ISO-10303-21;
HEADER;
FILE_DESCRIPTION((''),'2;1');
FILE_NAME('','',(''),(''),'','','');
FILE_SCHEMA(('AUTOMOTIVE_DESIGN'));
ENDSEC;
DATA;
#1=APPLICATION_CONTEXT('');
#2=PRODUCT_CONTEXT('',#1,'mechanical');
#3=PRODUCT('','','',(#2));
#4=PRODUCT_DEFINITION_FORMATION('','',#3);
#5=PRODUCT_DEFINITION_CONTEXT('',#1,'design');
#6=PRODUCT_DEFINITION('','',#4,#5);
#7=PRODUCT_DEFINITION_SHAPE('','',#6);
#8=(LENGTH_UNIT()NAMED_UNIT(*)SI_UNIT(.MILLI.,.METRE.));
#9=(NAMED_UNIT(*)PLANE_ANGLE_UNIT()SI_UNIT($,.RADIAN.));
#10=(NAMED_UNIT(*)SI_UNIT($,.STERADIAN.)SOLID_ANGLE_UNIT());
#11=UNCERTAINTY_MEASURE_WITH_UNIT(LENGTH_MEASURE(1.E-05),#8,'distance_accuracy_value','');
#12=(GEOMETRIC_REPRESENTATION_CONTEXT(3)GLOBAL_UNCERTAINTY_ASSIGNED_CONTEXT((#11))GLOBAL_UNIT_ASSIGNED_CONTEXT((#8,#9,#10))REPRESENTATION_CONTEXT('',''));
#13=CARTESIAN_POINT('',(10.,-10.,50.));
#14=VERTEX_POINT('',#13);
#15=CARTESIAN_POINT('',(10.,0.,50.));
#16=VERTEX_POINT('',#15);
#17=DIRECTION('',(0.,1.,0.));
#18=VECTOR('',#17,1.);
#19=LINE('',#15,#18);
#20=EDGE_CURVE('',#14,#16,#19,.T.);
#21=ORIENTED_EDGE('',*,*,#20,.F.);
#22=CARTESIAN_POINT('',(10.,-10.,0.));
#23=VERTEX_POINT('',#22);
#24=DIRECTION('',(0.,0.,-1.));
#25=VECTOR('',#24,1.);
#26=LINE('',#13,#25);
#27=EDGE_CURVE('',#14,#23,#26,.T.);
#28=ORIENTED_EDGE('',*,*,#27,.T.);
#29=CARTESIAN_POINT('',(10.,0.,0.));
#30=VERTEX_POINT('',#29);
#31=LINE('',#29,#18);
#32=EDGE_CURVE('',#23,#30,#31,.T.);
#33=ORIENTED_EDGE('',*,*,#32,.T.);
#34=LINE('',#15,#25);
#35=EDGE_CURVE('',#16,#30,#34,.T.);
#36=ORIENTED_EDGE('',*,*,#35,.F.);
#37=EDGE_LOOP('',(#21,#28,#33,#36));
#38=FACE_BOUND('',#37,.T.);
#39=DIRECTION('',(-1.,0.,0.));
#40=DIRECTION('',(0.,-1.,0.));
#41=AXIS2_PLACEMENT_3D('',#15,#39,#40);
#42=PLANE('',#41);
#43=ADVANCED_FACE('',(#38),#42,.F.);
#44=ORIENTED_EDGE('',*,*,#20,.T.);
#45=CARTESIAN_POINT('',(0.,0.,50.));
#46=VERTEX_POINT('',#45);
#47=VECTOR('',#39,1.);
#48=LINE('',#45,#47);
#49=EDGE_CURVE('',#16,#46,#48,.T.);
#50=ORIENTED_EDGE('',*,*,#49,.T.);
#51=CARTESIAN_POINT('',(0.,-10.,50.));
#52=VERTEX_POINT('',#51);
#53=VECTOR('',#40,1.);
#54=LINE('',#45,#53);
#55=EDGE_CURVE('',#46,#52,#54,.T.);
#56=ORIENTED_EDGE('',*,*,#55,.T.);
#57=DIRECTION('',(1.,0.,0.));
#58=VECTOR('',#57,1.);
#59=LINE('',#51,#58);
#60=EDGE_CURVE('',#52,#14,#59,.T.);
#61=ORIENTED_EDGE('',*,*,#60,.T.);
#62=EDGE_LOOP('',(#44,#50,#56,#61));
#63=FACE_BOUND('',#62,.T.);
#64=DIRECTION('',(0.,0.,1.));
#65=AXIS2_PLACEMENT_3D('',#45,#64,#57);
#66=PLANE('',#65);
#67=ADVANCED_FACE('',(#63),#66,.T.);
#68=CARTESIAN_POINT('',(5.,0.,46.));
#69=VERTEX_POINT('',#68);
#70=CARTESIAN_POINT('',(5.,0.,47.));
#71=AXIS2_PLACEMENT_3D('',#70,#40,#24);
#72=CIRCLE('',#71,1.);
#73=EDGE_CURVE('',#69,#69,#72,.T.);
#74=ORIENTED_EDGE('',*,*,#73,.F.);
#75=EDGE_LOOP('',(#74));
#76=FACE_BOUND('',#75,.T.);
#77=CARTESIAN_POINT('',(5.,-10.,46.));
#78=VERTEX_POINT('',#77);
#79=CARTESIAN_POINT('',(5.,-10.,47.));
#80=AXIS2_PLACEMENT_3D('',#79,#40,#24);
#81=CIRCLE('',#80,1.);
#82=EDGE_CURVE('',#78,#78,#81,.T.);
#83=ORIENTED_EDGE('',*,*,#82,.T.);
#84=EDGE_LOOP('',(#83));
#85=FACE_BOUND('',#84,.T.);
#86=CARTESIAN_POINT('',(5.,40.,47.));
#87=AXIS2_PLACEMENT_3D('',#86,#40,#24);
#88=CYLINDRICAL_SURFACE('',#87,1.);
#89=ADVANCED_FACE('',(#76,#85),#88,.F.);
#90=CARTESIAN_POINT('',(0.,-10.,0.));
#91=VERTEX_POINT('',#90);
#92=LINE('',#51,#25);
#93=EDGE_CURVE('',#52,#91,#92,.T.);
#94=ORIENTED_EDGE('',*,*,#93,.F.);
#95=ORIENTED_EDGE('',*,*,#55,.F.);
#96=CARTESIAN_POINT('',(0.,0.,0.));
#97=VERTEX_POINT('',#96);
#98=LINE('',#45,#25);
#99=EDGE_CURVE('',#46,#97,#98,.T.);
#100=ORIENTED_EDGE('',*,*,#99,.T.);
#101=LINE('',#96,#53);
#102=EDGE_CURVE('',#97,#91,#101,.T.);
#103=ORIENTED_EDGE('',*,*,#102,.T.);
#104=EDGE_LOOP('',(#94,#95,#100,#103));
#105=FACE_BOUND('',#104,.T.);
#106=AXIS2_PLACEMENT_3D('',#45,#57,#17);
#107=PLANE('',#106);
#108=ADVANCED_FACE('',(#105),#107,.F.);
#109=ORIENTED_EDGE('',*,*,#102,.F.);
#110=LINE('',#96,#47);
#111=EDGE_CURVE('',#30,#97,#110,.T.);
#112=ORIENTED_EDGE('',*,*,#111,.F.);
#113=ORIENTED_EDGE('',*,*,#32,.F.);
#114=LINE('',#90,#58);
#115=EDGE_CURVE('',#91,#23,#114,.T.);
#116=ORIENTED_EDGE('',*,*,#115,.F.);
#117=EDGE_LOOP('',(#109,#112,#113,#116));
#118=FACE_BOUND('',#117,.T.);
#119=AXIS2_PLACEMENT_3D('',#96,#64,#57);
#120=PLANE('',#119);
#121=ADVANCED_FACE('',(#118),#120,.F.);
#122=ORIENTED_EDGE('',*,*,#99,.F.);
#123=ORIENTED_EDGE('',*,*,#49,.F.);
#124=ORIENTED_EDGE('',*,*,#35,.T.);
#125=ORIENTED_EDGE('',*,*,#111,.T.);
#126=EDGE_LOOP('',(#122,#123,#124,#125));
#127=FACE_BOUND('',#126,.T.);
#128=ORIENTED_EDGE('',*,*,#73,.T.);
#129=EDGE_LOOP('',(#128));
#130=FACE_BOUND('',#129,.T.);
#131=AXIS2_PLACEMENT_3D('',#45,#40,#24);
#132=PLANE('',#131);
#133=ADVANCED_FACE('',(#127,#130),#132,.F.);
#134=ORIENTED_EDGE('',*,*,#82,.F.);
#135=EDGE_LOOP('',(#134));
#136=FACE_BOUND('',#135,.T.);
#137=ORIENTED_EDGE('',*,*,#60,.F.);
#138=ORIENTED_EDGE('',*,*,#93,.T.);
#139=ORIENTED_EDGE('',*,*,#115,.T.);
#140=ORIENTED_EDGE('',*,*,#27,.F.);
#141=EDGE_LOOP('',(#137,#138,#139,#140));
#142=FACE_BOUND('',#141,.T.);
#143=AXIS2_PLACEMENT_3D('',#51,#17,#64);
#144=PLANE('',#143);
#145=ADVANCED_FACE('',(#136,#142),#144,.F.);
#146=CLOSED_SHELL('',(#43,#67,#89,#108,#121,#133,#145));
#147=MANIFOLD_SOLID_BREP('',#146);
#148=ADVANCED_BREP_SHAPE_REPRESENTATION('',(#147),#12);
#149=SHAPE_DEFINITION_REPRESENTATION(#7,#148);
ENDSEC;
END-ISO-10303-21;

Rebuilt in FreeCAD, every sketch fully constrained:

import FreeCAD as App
import Part
import Sketcher

V = App.Vector
Q = App.Units.Quantity

doc = App.newDocument("Part")
params = doc.addObject("Spreadsheet::Sheet", "Params")
for row, (alias, value) in enumerate([
    ("sketch1_width", "10 mm"),
    ("pad1_length", "50 mm"),
    ("sketch2_diameter", "2 mm"),
    ("pocket1_length", "50 mm"),
], start=1):
    params.set(f"A{row}", alias)
    params.set(f"B{row}", "=" + value)
    params.setAlias(f"B{row}", alias)

body = doc.addObject("PartDesign::Body", "Body")

sketch1 = body.newObject("Sketcher::SketchObject", "Sketch")
sketch1.AttachmentSupport = (doc.getObject("XY_Plane"), [""])
sketch1.MapMode = "FlatFace"
sketch1.addGeometry([
    Part.LineSegment(V(0, 0, 0), V(0, -10, 0)),
    Part.LineSegment(V(0, -10, 0), V(10, -10, 0)),
    Part.LineSegment(V(10, -10, 0), V(10, 0, 0)),
    Part.LineSegment(V(10, 0, 0), V(0, 0, 0)),
], False)
sketch1.addConstraint([
    Sketcher.Constraint("Coincident", 0, 2, 1, 1),
    Sketcher.Constraint("Coincident", 1, 2, 2, 1),
    Sketcher.Constraint("Coincident", 2, 2, 3, 1),
    Sketcher.Constraint("Coincident", 3, 2, 0, 1),
    Sketcher.Constraint("Vertical", 0),
    Sketcher.Constraint("Horizontal", 1),
    Sketcher.Constraint("Vertical", 2),
    Sketcher.Constraint("Horizontal", 3),
    Sketcher.Constraint("Coincident", 3, 2, -1, 1),
    Sketcher.Constraint("Equal", 3, 0),
    Sketcher.Constraint("DistanceX", 1, 1, 1, 2, Q("10 mm")),
])
sketch1.setExpression("Constraints[10]", "Params.sketch1_width")
pad1 = body.newObject("PartDesign::Pad", "Pad")
pad1.Profile = sketch1
pad1.setExpression("Length", "Params.pad1_length")

sketch2 = body.newObject("Sketcher::SketchObject", "Sketch001")
sketch2.AttachmentSupport = (doc.getObject("XZ_Plane"), [""])
sketch2.MapMode = "FlatFace"
sketch2.AttachmentOffset = App.Placement(V(0, 0, 10), App.Rotation())
sketch2.addGeometry(Part.Circle(V(5, 47, 0), V(0, 0, 1), 1), False)
sketch2.addConstraint([
    Sketcher.Constraint("Diameter", 0, Q("2 mm")),
    Sketcher.Constraint("DistanceX", -1, 1, 0, 3, Q("5 mm")),
    Sketcher.Constraint("DistanceY", -1, 1, 0, 3, Q("47 mm")),
])
sketch2.setExpression("Constraints[0]", "Params.sketch2_diameter")
pocket1 = body.newObject("PartDesign::Pocket", "Pocket")
pocket1.Profile = sketch2
pocket1.setExpression("Length", "Params.pocket1_length")

doc.recompute()
